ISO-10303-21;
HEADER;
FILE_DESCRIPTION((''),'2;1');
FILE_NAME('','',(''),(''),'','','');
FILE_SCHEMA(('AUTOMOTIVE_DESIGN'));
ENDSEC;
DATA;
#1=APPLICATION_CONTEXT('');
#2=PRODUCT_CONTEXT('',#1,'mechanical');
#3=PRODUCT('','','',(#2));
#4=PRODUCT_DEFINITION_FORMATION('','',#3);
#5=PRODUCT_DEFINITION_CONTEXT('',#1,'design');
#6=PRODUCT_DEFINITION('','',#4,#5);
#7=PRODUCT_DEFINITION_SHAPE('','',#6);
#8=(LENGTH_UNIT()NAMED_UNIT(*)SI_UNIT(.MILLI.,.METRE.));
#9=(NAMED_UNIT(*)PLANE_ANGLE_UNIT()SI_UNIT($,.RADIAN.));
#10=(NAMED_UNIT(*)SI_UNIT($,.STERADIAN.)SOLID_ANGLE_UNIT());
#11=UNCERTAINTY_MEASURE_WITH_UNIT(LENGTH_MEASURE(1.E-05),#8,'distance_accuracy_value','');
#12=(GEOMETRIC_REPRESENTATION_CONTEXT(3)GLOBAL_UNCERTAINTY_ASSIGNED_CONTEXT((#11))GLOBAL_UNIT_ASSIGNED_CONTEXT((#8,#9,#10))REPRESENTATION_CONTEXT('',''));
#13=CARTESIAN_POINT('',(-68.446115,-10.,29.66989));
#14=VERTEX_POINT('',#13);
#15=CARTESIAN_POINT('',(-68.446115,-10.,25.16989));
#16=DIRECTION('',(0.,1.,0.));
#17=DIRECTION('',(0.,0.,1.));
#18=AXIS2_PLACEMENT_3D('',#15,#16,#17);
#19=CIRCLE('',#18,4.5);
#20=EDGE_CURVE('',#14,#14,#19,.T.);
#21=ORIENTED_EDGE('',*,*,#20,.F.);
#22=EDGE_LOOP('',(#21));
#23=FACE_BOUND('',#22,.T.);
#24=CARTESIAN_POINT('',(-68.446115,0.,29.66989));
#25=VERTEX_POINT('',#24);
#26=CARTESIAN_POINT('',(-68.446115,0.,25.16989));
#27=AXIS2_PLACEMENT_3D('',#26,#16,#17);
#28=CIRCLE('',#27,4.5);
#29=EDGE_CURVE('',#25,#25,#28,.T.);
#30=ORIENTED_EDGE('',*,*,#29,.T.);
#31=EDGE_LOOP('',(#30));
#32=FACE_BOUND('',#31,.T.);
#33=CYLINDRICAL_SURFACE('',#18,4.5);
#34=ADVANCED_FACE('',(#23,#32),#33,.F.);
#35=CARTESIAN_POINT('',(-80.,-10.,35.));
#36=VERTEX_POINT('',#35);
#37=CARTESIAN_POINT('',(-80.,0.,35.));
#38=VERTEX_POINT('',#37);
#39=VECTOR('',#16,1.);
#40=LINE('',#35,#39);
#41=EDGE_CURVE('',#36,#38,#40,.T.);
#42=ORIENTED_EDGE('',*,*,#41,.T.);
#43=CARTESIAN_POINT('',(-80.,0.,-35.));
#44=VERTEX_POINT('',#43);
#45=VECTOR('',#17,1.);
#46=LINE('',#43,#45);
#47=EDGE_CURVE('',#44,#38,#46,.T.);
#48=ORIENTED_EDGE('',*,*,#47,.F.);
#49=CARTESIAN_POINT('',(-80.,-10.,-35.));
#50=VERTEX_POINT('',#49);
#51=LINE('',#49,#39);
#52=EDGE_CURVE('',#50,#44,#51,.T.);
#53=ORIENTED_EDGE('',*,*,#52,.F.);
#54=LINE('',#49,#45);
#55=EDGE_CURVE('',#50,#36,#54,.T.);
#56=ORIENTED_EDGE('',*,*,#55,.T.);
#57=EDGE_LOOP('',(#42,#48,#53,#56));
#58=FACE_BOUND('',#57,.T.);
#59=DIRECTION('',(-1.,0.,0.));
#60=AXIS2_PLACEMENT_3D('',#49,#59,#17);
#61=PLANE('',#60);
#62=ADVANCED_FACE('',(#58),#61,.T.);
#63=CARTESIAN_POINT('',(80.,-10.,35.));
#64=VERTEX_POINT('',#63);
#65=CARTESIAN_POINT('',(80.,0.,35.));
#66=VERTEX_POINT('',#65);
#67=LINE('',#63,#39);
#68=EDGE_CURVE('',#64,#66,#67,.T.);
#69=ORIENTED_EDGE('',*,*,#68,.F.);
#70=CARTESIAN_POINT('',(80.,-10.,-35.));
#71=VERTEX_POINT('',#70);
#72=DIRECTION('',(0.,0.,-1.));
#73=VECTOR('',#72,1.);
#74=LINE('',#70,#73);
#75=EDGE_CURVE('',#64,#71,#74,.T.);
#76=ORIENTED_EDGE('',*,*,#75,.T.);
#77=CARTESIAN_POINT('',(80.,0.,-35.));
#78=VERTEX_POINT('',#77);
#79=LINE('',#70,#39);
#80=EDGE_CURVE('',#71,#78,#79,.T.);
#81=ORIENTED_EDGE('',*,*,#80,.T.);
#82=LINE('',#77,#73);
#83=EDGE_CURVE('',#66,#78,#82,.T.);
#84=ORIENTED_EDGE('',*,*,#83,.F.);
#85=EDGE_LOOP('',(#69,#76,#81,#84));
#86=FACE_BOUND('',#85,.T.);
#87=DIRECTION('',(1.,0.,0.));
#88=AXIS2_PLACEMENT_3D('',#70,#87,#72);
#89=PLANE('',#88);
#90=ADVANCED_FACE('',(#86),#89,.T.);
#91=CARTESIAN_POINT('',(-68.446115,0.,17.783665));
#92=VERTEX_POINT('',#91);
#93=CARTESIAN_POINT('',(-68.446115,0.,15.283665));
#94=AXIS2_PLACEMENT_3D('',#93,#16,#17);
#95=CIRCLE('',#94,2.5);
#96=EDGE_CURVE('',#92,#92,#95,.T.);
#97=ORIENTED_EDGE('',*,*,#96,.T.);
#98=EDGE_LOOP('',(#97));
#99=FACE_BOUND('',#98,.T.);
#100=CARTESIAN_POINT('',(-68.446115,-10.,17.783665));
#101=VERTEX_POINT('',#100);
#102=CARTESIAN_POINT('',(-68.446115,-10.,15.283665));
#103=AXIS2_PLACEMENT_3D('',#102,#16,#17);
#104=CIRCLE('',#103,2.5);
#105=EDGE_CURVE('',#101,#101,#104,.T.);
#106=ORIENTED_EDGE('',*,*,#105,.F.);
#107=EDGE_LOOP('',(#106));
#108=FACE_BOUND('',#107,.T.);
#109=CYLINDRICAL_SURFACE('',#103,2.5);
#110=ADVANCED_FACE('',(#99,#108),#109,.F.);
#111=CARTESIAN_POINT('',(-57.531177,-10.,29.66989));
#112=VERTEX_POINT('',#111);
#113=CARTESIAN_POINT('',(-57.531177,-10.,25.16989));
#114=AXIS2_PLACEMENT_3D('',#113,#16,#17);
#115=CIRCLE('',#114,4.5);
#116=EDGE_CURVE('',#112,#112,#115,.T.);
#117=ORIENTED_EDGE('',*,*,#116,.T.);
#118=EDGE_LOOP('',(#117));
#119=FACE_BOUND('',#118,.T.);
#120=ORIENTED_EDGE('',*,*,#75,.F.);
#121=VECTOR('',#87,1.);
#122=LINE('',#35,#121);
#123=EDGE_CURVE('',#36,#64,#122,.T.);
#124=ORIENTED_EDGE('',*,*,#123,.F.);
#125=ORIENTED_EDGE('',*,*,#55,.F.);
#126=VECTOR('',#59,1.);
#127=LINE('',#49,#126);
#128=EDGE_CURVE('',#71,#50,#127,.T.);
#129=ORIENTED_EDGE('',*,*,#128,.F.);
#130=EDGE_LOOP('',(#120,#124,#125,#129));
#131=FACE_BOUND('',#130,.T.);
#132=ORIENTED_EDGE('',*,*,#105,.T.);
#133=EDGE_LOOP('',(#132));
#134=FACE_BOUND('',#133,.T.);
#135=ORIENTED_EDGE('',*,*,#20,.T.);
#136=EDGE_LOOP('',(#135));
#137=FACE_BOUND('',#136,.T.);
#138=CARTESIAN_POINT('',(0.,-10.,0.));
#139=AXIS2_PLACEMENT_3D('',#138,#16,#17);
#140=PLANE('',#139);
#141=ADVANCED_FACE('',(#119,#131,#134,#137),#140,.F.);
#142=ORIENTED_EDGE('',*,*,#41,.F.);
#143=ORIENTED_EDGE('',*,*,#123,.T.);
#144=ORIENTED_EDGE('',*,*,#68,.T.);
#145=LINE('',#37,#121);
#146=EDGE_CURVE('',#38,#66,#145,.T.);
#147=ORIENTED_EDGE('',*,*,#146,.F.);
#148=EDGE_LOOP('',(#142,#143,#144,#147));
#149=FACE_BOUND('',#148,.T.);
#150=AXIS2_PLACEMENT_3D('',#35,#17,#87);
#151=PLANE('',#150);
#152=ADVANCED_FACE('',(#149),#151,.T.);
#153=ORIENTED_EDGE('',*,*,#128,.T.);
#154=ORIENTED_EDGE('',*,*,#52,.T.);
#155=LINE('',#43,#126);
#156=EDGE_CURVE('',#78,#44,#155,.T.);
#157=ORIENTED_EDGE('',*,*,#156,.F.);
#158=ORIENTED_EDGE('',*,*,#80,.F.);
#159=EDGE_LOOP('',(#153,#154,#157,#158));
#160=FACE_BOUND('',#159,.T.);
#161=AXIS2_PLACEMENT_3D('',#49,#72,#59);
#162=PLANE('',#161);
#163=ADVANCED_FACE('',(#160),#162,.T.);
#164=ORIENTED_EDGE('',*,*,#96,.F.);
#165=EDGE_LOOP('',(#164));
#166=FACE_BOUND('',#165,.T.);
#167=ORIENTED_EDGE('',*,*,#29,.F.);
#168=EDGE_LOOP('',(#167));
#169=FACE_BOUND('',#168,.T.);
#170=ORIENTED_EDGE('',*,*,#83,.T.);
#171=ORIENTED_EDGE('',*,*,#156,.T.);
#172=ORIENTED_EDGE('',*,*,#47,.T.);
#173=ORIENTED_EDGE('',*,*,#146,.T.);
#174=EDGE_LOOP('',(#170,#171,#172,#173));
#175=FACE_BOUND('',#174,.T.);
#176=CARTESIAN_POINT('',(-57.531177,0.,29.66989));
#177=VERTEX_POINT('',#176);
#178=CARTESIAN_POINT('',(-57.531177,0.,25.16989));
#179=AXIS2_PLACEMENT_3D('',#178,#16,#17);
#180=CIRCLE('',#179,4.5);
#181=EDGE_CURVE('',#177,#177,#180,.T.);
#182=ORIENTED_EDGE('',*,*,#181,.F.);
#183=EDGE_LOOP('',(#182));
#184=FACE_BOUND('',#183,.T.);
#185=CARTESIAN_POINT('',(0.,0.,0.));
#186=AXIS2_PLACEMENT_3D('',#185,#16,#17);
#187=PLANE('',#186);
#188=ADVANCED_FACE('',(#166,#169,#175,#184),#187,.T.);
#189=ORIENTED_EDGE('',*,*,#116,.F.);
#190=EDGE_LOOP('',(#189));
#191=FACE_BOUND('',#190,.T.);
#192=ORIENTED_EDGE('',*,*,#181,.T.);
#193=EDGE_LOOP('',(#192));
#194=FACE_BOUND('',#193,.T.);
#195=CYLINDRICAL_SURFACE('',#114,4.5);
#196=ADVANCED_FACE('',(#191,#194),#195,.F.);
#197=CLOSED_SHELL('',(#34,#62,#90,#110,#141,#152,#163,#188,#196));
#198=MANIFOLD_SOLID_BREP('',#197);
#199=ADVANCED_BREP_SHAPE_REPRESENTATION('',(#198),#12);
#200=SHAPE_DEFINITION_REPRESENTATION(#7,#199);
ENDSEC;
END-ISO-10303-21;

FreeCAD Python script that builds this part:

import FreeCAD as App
import Part
import Sketcher
from FreeCAD import Vector
Q = App.Units.Quantity


def add_polygon(sketch, points):
    """Adds a closed chain of lines whose ends are joined by coincident constraints."""
    first, n = sketch.GeometryCount, len(points)
    for a, b in zip(points, points[1:] + points[:1]):
        sketch.addGeometry(Part.LineSegment(App.Vector(*a, 0), App.Vector(*b, 0)), False)
    for i in range(n):
        sketch.addConstraint(Sketcher.Constraint("Coincident", first + i, 2, first + (i + 1) % n, 1))

doc = App.newDocument("Part")
params = doc.addObject("Spreadsheet::Sheet", "Params")
for row, (alias, value) in enumerate([
    ("sketch1_diameter", "9 mm"),
    ("sketch1_diameter2", "5 mm"),
    ("sketch1_width", "160 mm"),
    ("sketch1_height", "70 mm"),
    ("pad1_length", "10 mm"),
], start=1):
    params.set(f"A{row}", alias)
    params.set(f"B{row}", "=" + value)
    params.setAlias(f"B{row}", alias)

body = doc.addObject("PartDesign::Body", "Body")

# Sketch on XZ plane
sketch1 = doc.addObject("Sketcher::SketchObject", "Sketch")
body.addObject(sketch1)
sketch1.AttachmentSupport = (doc.XZ_Plane, [""])
sketch1.MapMode = "FlatFace"
add_polygon(sketch1, [(-80, -35), (-80, 35), (80, 35), (80, -35)])  # lines 0-3
sketch1.addGeometry(Part.Circle(Vector(-68.4, 25.2, 0), Vector(0, 0, 1), 4.5), False)  # 4
sketch1.addGeometry(Part.Circle(Vector(-57.5, 25.2, 0), Vector(0, 0, 1), 4.5), False)  # 5
sketch1.addGeometry(Part.Circle(Vector(-68.4, 15.3, 0), Vector(0, 0, 1), 2.5), False)  # 6
sketch1.addConstraint([
    Sketcher.Constraint("Vertical", 0),
    Sketcher.Constraint("Horizontal", 1),
    Sketcher.Constraint("Vertical", 2),
    Sketcher.Constraint("Horizontal", 3),
    Sketcher.Constraint("Equal", 4, 5),
    Sketcher.Constraint("Symmetric", 0, 2, 2, 2, -1, 1),
    Sketcher.Constraint("Horizontal", 4, 3, 5, 3),
    Sketcher.Constraint("Vertical", 4, 3, 6, 3),
    Sketcher.Constraint("Diameter", 4, Q("9 mm")),
    Sketcher.Constraint("Diameter", 6, Q("5 mm")),
    Sketcher.Constraint("DistanceX", 1, 1, 1, 2, Q("160 mm")),
    Sketcher.Constraint("DistanceY", 0, 1, 0, 2, Q("70 mm")),
    Sketcher.Constraint("DistanceY", -1, 1, 4, 3, Q("25.16989 mm")),
    Sketcher.Constraint("DistanceX", 4, 3, -1, 1, Q("68.446115 mm")),
    Sketcher.Constraint("DistanceX", 5, 3, -1, 1, Q("57.531177 mm")),
    Sketcher.Constraint("DistanceY", -1, 1, 6, 3, Q("15.283665 mm")),
])
sketch1.setExpression("Constraints[12]", "Params.sketch1_diameter")
sketch1.setExpression("Constraints[13]", "Params.sketch1_diameter2")
sketch1.setExpression("Constraints[14]", "Params.sketch1_width")
sketch1.setExpression("Constraints[15]", "Params.sketch1_height")
pad1 = doc.addObject("PartDesign::Pad", "Pad")
body.addObject(pad1)
pad1.Profile = sketch1
pad1.setExpression("Length", "Params.pad1_length")

doc.recompute()
